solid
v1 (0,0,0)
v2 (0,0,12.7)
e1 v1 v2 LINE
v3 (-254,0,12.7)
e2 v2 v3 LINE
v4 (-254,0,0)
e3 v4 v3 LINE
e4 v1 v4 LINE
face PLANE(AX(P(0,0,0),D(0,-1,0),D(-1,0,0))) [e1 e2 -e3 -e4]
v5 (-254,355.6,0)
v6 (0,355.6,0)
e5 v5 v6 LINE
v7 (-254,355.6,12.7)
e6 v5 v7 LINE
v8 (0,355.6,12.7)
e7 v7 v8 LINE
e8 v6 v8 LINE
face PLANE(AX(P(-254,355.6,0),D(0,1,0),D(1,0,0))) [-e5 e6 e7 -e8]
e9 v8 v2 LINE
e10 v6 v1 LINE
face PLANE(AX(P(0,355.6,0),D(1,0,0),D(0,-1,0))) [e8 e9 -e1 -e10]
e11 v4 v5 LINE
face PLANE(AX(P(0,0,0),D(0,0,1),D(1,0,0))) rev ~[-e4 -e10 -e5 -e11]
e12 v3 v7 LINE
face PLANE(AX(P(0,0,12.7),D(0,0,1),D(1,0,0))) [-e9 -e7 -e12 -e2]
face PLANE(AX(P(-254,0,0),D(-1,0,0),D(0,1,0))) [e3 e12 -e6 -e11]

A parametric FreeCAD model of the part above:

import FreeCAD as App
import Part
import Sketcher
from FreeCAD import Vector
Q = App.Units.Quantity

doc = App.newDocument("Part")
body = doc.addObject("PartDesign::Body", "Body")

# Sketch on XY plane
sketch1 = body.newObject("Sketcher::SketchObject", "Sketch")
sketch1.AttachmentSupport = (doc.getObject("XY_Plane"), [""])
sketch1.MapMode = "FlatFace"
sketch1.addGeometry(Part.LineSegment(Vector(-254, 0, 0), Vector(0, 0, 0)), False)
sketch1.addGeometry(Part.LineSegment(Vector(0, 0, 0), Vector(0, 355.6, 0)), False)
sketch1.addGeometry(Part.LineSegment(Vector(0, 355.6, 0), Vector(-254, 355.6, 0)), False)
sketch1.addGeometry(Part.LineSegment(Vector(-254, 355.6, 0), Vector(-254, 0, 0)), False)
sketch1.addConstraint(Sketcher.Constraint("Coincident", 0, 2, 1, 1))
sketch1.addConstraint(Sketcher.Constraint("Coincident", 1, 2, 2, 1))
sketch1.addConstraint(Sketcher.Constraint("Coincident", 2, 2, 3, 1))
sketch1.addConstraint(Sketcher.Constraint("Coincident", 3, 2, 0, 1))
sketch1.addConstraint(Sketcher.Constraint("Horizontal", 0))
sketch1.addConstraint(Sketcher.Constraint("Vertical", 1))
sketch1.addConstraint(Sketcher.Constraint("Horizontal", 2))
sketch1.addConstraint(Sketcher.Constraint("Vertical", 3))
sketch1.addConstraint(Sketcher.Constraint("Coincident", 0, 2, -1, 1))
sketch1.addConstraint(Sketcher.Constraint("DistanceX", 0, 1, 0, 2, Q("10 in")))
sketch1.addConstraint(Sketcher.Constraint("DistanceY", 1, 1, 1, 2, Q("14 in")))
pad1 = body.newObject("PartDesign::Pad", "Pad")
pad1.Profile = sketch1
pad1.Length = Q("0.5 in")

doc.recompute()
